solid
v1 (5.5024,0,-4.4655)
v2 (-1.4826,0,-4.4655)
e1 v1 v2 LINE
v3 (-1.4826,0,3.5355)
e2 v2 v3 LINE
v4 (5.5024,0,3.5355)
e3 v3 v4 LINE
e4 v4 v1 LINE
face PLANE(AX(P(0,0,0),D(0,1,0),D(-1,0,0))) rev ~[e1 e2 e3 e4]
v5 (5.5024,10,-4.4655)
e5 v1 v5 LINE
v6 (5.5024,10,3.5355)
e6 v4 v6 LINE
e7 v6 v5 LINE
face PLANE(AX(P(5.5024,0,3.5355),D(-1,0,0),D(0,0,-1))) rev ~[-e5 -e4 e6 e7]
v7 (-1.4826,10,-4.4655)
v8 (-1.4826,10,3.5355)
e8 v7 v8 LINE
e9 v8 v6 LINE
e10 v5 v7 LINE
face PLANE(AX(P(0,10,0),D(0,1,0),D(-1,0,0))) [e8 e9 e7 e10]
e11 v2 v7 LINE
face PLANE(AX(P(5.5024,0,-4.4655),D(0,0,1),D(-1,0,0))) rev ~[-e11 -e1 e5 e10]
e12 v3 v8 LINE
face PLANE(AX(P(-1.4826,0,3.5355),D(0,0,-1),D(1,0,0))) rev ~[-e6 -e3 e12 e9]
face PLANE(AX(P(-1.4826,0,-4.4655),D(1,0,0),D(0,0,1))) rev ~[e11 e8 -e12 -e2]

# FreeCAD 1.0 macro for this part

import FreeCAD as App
import Part
import Sketcher
from FreeCAD import Vector
Q = App.Units.Quantity

doc = App.newDocument("Part")
body = doc.addObject("PartDesign::Body", "Body")

# Sketch on XZ plane
sketch1 = body.newObject("Sketcher::SketchObject", "Sketch")
sketch1.AttachmentSupport = (doc.getObject("XZ_Plane"), [""])
sketch1.MapMode = "FlatFace"
sketch1.addGeometry([
    Part.LineSegment(Vector(-1, -4, 0), Vector(-1, 4, 0)),
    Part.LineSegment(Vector(-1, 4, 0), Vector(6, 4, 0)),
    Part.LineSegment(Vector(6, 4, 0), Vector(6, -4, 0)),
    Part.LineSegment(Vector(6, -4, 0), Vector(-1, -4, 0)),
], False)
sketch1.addConstraint([
    Sketcher.Constraint("Coincident", 0, 2, 1, 1),
    Sketcher.Constraint("Coincident", 1, 2, 2, 1),
    Sketcher.Constraint("Coincident", 2, 2, 3, 1),
    Sketcher.Constraint("Coincident", 3, 2, 0, 1),
    Sketcher.Constraint("Vertical", 0),
    Sketcher.Constraint("Horizontal", 1),
    Sketcher.Constraint("Vertical", 2),
    Sketcher.Constraint("Horizontal", 3),
    Sketcher.Constraint("DistanceX", 1, 1, 1, 2, Q("0.275 in")),
    Sketcher.Constraint("DistanceY", 0, 1, 0, 2, Q("0.315 in")),
    Sketcher.Constraint("DistanceY", -1, 1, 0, 2, Q("0.1392 in")),
    Sketcher.Constraint("DistanceX", 0, 2, -1, 1, 1.4826),
])
pad1 = body.newObject("PartDesign::Pad", "Pad")
pad1.Profile = sketch1
pad1.Length = Q("0.3937008 in")
pad1.Reversed = True

doc.recompute()
